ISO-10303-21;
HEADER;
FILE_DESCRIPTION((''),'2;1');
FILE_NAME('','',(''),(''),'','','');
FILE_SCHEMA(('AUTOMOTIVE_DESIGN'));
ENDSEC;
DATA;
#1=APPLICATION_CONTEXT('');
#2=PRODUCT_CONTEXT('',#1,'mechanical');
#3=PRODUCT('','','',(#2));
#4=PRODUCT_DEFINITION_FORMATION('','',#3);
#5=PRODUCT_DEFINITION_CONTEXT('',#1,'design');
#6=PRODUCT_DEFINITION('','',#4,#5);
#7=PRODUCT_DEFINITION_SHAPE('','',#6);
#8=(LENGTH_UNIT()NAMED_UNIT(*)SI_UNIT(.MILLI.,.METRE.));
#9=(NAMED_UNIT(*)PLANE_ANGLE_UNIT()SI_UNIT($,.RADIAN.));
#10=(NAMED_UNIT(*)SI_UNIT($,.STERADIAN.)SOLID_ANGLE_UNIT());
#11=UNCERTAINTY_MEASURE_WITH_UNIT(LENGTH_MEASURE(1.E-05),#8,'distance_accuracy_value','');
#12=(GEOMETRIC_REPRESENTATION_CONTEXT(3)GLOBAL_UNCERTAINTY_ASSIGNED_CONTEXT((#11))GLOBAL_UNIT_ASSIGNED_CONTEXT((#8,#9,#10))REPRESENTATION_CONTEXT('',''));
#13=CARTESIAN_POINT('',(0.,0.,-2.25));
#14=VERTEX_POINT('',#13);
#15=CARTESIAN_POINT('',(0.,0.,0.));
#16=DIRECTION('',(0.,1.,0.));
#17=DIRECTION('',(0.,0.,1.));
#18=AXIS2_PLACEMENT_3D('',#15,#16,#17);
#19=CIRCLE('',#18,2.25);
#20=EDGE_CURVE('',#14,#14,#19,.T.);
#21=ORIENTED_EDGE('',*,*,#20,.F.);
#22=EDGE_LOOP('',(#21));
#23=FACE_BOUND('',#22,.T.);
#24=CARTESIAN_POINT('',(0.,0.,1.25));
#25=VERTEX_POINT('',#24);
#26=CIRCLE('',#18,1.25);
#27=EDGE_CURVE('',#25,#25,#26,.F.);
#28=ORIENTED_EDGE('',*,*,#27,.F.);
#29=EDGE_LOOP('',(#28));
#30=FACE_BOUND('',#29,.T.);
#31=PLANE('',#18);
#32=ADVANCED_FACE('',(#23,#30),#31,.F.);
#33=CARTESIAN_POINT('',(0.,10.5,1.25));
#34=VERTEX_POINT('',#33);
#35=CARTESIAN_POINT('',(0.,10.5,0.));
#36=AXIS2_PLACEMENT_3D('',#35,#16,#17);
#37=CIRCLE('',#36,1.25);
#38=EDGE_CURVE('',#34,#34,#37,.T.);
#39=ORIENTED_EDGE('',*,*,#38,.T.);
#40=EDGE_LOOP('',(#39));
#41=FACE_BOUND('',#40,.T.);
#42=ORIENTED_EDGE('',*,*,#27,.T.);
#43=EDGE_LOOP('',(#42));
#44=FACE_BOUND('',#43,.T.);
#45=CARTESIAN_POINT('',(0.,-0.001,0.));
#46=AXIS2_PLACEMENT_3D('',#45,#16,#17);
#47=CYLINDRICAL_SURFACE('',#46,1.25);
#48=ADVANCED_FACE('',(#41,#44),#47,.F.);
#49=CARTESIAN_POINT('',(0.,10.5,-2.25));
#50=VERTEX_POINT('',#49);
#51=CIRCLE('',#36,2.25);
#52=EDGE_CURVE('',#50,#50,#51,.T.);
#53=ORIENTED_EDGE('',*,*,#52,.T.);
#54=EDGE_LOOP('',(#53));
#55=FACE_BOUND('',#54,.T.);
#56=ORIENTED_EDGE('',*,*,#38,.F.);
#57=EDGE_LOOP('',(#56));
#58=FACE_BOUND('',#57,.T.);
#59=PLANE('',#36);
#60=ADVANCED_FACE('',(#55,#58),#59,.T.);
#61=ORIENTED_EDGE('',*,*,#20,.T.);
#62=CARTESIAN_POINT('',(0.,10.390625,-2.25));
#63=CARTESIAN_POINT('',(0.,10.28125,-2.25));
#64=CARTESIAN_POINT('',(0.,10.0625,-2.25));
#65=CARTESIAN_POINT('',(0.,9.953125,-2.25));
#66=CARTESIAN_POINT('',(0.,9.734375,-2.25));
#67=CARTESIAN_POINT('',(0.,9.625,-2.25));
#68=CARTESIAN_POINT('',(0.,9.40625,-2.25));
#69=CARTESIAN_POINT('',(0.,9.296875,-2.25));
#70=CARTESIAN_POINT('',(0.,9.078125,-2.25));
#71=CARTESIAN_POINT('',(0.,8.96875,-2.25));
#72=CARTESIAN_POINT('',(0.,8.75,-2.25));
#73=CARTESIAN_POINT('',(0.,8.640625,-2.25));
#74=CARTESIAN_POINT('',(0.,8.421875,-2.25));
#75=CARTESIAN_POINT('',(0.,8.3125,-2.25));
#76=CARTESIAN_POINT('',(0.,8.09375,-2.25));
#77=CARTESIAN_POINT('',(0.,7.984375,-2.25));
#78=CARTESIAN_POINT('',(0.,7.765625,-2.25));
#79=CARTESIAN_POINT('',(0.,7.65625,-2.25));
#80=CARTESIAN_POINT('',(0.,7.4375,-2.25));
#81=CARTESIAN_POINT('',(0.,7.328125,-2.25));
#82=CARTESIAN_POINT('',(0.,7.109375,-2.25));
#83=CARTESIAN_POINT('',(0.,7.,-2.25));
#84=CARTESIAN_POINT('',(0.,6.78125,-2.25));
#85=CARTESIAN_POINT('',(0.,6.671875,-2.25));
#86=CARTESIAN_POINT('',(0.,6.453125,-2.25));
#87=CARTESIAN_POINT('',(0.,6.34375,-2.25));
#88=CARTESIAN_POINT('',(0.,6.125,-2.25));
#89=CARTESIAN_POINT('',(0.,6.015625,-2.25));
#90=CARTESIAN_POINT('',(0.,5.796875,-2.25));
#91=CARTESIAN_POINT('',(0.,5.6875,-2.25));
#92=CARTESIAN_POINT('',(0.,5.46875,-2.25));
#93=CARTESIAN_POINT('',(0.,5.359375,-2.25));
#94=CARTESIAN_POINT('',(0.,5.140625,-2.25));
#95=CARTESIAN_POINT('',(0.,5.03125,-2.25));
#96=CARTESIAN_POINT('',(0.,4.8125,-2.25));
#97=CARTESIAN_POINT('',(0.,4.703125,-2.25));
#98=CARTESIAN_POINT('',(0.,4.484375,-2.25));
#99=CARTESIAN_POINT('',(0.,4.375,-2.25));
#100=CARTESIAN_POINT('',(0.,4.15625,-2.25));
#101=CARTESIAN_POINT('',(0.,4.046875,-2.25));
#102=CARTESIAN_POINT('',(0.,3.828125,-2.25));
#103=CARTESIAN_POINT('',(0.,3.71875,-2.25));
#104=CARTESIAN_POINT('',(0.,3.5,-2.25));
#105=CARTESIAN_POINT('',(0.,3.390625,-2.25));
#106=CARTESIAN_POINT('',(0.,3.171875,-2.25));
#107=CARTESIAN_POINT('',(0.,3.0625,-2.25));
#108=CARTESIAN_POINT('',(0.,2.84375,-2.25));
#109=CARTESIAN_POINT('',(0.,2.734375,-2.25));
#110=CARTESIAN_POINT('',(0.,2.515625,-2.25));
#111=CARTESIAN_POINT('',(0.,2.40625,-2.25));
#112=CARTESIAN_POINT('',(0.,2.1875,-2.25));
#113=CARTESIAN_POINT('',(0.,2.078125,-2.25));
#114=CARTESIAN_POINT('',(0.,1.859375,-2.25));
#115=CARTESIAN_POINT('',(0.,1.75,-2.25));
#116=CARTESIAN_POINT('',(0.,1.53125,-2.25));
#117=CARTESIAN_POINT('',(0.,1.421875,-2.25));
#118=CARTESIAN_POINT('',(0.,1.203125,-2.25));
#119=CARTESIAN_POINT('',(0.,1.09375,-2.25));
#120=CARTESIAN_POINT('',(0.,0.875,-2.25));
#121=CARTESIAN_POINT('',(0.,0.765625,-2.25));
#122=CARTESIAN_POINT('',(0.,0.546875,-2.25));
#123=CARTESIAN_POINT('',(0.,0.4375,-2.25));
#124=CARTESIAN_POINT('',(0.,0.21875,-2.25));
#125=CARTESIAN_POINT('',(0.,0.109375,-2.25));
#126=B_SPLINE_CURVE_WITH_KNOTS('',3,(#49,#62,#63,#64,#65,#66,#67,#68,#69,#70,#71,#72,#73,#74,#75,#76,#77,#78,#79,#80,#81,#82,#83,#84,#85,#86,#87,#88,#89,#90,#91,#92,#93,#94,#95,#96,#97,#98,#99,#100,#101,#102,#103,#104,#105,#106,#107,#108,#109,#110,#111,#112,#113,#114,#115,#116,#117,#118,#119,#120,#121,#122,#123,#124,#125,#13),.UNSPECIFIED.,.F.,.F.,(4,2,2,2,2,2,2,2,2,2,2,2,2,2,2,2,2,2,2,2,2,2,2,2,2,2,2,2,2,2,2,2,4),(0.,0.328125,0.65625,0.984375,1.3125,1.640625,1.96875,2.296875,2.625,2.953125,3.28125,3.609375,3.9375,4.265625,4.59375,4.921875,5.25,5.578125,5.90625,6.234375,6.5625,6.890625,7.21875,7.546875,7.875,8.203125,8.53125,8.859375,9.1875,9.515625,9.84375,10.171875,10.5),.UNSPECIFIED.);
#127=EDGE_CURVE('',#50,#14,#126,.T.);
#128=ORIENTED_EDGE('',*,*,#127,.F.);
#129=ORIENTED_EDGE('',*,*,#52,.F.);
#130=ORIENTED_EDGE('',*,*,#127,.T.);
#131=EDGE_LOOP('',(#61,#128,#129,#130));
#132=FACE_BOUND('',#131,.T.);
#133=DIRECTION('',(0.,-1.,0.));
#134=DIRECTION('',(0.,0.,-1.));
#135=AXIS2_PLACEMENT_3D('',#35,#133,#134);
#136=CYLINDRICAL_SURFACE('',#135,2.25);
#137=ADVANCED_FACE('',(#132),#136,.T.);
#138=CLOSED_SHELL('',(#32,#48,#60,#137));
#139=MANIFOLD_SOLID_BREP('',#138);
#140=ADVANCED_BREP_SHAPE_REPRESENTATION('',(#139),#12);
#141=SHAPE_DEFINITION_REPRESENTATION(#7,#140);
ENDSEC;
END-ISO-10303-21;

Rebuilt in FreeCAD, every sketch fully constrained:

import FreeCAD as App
import Part
import Sketcher

V = App.Vector
Q = App.Units.Quantity

doc = App.newDocument("Part")
params = doc.addObject("Spreadsheet::Sheet", "Params")
for row, (alias, value) in enumerate([
    ("sketch1_diameter", "4.5 mm"),
    ("pad1_length", "10.5 mm"),
    ("sketch2_diameter", "2.5 mm"),
], start=1):
    params.set(f"A{row}", alias)
    params.set(f"B{row}", "=" + value)
    params.setAlias(f"B{row}", alias)

body = doc.addObject("PartDesign::Body", "Body")

sketch1 = body.newObject("Sketcher::SketchObject", "Sketch")
sketch1.AttachmentSupport = (doc.getObject("XZ_Plane"), [""])
sketch1.MapMode = "FlatFace"
sketch1.addGeometry(Part.Circle(V(0, 0, 0), V(0, 0, 1), 2.2), False)
sketch1.addConstraint(Sketcher.Constraint("Coincident", 0, 3, -1, 1))
sketch1.addConstraint(Sketcher.Constraint("Diameter", 0, Q("4.5 mm")))
sketch1.setExpression("Constraints[1]", "Params.sketch1_diameter")
pad1 = body.newObject("PartDesign::Pad", "Pad")
pad1.Profile = sketch1
pad1.setExpression("Length", "Params.pad1_length")
pad1.Reversed = True

sketch2 = body.newObject("Sketcher::SketchObject", "Sketch001")
sketch2.AttachmentSupport = (doc.getObject("XZ_Plane"), [""])
sketch2.MapMode = "FlatFace"
sketch2.AttachmentOffset = App.Placement(V(0, 0, -10.5), App.Rotation())
sketch2.addGeometry(Part.Circle(V(0, 0, 0), V(0, 0, 1), 1.2), False)
sketch2.addConstraint(Sketcher.Constraint("Coincident", 0, 3, -1, 1))
sketch2.addConstraint(Sketcher.Constraint("Diameter", 0, Q("2.5 mm")))
sketch2.setExpression("Constraints[1]", "Params.sketch2_diameter")
pocket1 = body.newObject("PartDesign::Pocket", "Pocket")
pocket1.Profile = sketch2
pocket1.Type = "UpToFirst"
pocket1.Reversed = True

doc.recompute()
